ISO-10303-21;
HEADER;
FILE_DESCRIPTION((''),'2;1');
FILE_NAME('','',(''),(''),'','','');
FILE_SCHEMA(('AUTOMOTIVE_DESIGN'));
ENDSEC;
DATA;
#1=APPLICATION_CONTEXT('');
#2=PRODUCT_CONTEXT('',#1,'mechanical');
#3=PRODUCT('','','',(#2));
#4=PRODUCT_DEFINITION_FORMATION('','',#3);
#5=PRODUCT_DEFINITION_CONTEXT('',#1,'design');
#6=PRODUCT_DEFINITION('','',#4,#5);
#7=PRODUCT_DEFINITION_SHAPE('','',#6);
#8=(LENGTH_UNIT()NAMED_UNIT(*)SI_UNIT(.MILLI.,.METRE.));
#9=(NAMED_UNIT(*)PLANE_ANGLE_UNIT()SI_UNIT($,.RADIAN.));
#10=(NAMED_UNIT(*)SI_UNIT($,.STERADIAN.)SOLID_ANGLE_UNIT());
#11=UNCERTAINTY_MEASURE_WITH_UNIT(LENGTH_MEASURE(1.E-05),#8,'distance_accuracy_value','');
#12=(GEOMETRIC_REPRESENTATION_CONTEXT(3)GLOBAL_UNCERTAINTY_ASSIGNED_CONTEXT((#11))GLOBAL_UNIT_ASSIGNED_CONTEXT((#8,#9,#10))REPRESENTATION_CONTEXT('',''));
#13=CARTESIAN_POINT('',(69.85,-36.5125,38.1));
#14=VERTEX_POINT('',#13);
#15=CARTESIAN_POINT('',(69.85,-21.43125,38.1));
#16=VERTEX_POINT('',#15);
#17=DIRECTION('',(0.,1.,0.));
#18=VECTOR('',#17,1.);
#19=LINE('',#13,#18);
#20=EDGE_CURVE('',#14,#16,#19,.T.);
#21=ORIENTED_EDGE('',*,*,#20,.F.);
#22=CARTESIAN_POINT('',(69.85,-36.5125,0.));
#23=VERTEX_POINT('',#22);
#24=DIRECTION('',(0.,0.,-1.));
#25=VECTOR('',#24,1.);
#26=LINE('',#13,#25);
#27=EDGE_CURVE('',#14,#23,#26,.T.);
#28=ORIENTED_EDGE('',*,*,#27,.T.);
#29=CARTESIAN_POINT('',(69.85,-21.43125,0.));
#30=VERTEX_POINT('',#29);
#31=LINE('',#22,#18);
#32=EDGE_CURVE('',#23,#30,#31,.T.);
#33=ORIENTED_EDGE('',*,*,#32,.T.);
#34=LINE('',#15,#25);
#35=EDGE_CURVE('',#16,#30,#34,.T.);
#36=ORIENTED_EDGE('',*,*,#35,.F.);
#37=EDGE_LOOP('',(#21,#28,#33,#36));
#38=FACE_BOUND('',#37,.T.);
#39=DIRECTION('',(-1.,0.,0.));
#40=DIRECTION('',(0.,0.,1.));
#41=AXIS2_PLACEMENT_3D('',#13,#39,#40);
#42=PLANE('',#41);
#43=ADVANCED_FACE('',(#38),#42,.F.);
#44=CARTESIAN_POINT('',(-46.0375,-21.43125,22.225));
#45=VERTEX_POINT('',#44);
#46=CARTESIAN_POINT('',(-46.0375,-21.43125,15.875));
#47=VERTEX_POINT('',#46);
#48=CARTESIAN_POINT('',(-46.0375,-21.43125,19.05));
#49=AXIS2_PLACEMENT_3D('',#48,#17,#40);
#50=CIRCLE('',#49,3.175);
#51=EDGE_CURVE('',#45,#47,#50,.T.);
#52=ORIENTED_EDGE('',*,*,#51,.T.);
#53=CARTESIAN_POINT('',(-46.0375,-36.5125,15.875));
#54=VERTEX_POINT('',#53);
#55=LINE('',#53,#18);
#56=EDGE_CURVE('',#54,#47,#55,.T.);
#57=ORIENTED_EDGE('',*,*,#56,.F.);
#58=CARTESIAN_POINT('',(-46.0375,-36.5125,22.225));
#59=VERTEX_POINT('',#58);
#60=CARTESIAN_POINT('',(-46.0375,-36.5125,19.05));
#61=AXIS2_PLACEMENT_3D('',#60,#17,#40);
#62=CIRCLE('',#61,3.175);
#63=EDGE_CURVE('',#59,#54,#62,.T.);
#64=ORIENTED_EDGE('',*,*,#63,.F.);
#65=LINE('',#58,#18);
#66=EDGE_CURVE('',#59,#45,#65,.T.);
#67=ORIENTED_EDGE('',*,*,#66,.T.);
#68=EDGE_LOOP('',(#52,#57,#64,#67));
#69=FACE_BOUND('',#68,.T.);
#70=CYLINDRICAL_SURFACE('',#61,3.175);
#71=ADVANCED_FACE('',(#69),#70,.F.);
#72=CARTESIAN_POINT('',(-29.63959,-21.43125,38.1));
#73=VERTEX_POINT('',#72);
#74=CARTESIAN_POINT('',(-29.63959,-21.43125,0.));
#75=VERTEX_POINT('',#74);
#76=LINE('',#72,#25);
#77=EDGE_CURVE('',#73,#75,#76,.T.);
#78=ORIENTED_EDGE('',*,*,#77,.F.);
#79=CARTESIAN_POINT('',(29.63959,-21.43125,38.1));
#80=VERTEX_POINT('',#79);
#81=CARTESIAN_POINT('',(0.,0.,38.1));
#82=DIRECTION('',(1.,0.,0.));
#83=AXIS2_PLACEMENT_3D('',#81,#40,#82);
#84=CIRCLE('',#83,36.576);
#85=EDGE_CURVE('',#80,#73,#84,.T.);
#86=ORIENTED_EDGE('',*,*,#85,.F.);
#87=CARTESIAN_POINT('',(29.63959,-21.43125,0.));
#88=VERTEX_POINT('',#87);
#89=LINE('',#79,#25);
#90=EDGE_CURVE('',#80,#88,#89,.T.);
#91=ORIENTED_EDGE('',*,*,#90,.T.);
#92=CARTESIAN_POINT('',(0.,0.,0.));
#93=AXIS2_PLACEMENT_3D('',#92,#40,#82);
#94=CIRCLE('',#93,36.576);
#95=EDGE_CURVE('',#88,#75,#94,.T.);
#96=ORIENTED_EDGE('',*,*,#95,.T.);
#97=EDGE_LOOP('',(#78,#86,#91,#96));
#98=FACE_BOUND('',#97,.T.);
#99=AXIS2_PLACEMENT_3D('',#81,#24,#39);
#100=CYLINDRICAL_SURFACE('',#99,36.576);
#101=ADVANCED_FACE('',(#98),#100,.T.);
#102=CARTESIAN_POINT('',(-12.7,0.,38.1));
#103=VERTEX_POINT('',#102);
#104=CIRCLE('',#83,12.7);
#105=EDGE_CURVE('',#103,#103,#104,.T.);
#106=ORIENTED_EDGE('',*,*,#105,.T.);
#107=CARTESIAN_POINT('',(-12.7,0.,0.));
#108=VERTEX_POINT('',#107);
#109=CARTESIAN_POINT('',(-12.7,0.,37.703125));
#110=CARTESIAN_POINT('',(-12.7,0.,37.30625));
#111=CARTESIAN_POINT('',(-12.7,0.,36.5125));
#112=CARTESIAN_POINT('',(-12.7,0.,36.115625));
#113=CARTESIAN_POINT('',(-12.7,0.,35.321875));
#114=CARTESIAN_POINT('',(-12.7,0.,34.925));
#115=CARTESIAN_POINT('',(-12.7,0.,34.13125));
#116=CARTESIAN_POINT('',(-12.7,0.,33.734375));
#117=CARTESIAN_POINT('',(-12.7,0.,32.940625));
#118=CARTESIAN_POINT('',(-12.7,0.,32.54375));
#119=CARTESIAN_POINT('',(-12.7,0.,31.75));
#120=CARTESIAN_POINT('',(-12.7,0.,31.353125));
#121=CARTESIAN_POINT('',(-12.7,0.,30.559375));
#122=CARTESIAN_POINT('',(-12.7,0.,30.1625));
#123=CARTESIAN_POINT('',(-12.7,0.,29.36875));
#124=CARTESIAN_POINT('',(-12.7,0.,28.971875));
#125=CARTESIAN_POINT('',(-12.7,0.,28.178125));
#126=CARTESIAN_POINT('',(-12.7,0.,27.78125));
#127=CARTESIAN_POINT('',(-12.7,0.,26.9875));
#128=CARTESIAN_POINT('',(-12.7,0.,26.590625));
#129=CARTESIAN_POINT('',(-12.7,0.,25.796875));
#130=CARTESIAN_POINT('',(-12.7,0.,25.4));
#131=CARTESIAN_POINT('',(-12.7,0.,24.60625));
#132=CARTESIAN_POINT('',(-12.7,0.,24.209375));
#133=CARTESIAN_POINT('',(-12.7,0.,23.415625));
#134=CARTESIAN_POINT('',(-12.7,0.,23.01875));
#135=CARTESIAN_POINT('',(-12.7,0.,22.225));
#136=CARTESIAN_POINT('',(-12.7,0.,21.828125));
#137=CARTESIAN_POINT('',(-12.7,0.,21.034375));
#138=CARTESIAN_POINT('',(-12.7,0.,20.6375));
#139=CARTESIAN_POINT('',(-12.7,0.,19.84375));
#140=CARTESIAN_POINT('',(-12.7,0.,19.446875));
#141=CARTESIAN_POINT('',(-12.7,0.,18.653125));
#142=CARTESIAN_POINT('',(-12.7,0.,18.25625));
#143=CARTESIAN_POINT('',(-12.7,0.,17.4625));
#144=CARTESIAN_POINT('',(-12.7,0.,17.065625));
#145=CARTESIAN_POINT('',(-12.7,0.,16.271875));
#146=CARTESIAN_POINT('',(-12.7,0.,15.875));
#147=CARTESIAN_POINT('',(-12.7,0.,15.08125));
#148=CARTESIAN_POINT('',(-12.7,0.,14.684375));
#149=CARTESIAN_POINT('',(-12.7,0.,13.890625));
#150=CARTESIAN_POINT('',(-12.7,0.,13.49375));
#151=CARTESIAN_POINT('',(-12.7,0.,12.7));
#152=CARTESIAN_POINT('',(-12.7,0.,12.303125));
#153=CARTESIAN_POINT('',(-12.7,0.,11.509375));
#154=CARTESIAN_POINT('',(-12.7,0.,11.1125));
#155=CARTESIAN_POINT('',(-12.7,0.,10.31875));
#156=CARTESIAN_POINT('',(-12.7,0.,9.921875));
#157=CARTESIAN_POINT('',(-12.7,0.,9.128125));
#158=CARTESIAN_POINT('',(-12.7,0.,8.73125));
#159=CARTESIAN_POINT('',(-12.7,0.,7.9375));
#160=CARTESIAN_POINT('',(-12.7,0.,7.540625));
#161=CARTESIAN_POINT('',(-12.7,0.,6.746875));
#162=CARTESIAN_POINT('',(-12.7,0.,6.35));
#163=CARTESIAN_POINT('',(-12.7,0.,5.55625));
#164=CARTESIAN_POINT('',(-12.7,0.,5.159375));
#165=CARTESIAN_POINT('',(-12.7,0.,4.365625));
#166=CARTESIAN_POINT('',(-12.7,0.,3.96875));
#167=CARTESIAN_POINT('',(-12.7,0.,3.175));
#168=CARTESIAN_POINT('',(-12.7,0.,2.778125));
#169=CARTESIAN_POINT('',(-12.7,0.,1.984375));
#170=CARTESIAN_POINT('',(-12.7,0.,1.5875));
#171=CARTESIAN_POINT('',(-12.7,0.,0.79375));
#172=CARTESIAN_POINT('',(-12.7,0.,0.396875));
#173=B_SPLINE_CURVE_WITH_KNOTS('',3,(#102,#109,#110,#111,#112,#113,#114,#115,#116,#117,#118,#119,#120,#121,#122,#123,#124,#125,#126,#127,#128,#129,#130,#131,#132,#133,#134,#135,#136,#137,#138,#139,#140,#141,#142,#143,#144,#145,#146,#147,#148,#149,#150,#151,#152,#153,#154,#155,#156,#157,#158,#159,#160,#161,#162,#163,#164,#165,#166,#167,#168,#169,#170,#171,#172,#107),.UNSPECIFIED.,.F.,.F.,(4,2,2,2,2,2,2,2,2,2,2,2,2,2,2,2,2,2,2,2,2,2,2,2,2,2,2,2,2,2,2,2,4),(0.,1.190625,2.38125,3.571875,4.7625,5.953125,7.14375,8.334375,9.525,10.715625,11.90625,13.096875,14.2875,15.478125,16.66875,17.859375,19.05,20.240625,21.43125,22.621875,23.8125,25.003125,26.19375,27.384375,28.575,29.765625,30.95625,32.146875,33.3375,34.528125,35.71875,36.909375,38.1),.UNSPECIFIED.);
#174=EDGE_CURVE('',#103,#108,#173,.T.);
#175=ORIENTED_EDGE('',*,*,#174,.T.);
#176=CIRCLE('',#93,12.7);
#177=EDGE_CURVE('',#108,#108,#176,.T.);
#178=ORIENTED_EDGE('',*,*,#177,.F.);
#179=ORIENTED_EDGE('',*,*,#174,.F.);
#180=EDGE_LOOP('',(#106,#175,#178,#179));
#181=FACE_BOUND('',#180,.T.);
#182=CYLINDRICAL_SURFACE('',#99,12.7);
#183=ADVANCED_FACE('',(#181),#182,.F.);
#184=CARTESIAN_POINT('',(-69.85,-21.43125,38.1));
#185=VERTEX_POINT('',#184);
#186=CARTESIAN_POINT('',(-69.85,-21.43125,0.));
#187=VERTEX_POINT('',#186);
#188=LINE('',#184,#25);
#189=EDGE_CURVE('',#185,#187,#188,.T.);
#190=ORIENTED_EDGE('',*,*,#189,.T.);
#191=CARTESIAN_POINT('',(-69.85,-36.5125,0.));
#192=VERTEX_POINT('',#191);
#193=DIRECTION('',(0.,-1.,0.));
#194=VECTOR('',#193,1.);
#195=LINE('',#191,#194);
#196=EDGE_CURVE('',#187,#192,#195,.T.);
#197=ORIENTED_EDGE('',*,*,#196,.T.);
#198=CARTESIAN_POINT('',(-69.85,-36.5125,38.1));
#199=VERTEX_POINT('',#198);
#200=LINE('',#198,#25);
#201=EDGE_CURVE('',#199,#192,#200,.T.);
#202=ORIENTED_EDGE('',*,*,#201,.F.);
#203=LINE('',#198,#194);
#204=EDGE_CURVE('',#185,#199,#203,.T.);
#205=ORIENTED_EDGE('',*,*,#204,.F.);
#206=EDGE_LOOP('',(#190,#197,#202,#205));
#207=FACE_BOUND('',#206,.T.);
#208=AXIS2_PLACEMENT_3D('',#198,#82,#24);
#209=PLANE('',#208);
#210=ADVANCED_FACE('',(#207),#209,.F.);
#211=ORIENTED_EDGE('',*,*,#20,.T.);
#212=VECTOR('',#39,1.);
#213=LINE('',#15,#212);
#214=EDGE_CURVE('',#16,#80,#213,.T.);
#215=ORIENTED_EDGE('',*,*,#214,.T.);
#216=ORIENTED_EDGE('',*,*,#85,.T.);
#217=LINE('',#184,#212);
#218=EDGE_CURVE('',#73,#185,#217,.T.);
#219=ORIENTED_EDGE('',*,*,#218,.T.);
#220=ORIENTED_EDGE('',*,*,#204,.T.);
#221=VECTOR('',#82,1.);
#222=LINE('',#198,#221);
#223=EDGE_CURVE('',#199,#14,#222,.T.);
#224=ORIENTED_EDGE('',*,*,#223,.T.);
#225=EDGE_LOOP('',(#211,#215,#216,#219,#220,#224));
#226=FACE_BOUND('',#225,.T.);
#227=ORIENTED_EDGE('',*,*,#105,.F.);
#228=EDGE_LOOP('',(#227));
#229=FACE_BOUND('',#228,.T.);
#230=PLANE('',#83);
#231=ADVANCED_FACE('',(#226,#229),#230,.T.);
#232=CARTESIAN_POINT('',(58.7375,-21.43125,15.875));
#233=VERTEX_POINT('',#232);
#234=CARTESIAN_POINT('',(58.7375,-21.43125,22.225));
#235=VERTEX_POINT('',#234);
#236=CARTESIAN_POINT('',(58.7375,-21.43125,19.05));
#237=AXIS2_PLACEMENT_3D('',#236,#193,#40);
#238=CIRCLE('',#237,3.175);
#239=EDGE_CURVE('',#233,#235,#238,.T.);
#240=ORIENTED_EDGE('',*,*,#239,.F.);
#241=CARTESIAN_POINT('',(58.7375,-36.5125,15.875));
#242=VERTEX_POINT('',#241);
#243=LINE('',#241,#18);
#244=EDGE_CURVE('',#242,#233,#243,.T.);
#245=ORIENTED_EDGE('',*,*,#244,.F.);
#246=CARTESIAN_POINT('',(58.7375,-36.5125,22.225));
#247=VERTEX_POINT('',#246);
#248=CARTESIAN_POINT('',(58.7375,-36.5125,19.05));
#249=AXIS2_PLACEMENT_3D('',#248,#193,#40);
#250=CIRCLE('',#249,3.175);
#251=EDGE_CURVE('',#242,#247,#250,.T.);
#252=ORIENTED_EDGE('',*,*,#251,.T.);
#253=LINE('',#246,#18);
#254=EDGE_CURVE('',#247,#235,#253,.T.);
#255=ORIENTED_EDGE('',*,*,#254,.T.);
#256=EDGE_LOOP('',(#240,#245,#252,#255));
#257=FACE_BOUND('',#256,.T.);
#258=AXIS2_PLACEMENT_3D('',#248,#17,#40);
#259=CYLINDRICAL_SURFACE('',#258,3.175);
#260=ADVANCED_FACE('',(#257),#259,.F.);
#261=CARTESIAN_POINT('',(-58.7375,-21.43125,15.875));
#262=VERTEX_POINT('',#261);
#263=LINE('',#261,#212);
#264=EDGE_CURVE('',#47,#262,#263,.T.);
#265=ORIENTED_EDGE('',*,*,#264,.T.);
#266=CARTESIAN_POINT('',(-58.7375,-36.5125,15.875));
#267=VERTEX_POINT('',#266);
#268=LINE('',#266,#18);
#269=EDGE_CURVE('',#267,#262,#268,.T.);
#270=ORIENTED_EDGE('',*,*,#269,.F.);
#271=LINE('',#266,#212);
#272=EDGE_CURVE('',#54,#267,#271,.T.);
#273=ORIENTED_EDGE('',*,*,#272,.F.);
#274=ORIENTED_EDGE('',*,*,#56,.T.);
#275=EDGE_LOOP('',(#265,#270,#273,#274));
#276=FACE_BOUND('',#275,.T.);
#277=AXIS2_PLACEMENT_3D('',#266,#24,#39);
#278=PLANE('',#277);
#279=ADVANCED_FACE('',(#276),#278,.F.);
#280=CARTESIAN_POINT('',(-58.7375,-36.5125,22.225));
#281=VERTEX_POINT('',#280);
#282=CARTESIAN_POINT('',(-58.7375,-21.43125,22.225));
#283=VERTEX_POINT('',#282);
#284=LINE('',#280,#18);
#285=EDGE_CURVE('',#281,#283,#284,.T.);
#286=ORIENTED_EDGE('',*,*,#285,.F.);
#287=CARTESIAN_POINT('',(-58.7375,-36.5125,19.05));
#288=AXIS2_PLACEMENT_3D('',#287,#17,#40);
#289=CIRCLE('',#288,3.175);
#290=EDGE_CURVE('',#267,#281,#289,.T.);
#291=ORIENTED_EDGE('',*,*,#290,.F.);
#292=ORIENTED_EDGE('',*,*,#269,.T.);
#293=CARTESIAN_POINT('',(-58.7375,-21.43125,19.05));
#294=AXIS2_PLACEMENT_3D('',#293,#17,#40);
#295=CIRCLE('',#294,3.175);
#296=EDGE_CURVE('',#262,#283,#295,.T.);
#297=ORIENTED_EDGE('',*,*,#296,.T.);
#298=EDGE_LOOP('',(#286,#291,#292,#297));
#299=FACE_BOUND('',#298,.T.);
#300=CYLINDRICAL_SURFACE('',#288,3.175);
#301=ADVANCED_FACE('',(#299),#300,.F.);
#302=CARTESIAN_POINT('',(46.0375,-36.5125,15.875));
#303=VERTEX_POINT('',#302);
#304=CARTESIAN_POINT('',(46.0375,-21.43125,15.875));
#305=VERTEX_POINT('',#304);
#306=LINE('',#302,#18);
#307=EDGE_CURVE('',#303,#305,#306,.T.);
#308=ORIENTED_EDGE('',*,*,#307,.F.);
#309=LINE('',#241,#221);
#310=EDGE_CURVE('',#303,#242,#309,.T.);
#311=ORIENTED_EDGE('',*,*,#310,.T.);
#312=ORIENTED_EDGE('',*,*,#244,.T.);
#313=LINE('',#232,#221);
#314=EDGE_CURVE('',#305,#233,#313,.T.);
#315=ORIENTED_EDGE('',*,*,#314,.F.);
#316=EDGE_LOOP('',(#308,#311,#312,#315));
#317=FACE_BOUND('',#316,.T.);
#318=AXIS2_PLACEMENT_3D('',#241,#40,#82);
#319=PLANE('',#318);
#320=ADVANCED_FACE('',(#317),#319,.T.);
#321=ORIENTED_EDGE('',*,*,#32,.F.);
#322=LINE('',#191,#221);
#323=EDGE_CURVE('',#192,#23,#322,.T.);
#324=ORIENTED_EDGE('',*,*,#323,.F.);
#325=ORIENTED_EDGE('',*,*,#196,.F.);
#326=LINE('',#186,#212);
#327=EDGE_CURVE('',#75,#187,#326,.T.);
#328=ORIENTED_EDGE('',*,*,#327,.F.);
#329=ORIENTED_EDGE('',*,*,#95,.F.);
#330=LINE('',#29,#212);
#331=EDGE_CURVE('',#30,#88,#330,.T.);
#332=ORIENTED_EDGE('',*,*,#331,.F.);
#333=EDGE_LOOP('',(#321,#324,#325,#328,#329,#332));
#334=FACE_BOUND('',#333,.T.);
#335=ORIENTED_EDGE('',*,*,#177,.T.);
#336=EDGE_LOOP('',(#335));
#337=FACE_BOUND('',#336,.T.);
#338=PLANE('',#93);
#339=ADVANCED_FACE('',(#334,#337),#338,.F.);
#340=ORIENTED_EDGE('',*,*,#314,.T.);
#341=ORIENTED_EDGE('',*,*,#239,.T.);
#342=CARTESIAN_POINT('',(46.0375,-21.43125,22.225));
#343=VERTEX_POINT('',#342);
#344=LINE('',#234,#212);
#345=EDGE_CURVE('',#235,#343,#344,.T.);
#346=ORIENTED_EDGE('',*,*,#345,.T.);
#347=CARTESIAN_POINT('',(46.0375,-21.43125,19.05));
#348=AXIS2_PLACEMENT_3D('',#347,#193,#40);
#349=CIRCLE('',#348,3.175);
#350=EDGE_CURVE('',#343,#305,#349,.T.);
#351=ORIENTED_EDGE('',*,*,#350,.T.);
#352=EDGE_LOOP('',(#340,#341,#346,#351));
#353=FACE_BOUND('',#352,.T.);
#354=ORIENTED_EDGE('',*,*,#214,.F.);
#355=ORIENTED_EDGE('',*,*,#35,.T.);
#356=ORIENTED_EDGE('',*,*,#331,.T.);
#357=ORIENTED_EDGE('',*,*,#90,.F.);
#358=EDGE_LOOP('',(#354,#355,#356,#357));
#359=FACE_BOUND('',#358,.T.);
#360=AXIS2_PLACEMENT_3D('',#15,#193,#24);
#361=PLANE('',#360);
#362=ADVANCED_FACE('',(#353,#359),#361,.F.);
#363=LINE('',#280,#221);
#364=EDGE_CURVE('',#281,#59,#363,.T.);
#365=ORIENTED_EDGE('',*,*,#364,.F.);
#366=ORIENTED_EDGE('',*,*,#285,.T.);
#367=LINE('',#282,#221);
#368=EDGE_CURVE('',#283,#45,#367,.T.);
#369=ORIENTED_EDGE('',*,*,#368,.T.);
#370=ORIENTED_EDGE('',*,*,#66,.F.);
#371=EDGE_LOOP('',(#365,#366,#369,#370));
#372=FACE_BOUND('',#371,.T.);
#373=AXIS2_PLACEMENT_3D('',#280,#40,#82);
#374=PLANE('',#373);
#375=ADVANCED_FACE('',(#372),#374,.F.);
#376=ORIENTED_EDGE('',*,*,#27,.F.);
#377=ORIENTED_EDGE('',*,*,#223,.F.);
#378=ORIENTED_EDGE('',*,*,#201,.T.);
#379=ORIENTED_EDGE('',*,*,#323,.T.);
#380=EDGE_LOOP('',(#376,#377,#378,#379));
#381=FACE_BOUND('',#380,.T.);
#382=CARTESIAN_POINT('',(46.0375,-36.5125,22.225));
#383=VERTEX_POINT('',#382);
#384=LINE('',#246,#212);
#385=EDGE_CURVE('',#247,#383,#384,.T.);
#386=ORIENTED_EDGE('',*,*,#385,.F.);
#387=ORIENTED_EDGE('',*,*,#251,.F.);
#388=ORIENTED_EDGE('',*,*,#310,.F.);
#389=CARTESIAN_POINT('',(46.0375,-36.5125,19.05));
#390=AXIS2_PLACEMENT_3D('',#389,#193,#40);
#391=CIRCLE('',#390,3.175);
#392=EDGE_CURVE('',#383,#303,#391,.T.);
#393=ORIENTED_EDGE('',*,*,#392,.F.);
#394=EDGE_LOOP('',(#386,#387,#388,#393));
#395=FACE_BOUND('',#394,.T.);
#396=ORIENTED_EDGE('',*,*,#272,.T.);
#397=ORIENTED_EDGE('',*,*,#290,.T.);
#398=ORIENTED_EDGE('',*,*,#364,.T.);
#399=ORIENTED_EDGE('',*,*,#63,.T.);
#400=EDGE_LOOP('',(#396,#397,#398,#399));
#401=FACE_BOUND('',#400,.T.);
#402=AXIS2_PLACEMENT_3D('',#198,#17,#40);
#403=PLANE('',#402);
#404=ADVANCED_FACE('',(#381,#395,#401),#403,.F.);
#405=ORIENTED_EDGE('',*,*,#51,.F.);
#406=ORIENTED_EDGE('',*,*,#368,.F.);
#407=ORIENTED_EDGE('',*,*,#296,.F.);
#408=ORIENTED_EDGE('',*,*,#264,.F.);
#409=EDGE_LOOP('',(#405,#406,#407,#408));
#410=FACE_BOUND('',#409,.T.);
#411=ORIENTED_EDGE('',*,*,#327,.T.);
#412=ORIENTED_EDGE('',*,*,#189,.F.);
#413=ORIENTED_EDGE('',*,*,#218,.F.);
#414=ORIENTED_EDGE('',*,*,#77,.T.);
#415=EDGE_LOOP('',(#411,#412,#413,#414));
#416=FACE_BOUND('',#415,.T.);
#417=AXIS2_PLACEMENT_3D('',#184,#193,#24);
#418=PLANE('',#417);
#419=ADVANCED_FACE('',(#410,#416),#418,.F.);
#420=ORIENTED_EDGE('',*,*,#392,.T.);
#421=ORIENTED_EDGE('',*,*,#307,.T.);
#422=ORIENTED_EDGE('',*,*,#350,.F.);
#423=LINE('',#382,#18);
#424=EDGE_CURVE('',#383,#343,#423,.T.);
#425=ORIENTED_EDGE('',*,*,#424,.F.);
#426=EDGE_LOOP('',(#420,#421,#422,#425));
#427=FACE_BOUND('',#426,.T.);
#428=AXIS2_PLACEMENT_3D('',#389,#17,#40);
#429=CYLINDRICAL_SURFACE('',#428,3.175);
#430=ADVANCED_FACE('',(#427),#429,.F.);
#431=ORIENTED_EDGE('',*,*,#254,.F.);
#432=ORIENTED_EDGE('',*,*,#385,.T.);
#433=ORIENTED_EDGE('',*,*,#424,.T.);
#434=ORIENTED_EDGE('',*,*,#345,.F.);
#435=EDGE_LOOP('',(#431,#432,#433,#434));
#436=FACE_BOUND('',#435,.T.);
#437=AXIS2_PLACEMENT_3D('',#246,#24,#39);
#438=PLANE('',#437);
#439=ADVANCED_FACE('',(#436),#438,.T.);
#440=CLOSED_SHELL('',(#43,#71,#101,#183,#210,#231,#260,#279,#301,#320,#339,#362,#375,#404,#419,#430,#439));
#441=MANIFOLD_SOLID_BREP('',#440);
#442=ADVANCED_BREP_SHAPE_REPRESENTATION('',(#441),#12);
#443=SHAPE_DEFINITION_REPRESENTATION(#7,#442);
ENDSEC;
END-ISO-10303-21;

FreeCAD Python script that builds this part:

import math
import FreeCAD as App
import Part
import Sketcher
Q = App.Units.Quantity

doc = App.newDocument("Part")
body = doc.addObject("PartDesign::Body", "Body")

# Sketch on XY plane
sketch1 = doc.addObject("Sketcher::SketchObject", "Sketch")
body.addObject(sketch1)
sketch1.AttachmentSupport = (doc.XY_Plane, [""])
sketch1.MapMode = "FlatFace"
sketch1.addGeometry(Part.LineSegment(App.Vector(-70, -37, 0), App.Vector(70, -37, 0)), False)
sketch1.addGeometry(Part.LineSegment(App.Vector(70, -37, 0), App.Vector(70, -21, 0)), False)
sketch1.addGeometry(Part.LineSegment(App.Vector(70, -21, 0), App.Vector(30, -21, 0)), False)
sketch1.addGeometry(Part.ArcOfCircle(Part.Circle(App.Vector(0, 0, 0), App.Vector(0, 0, 1), 37), math.radians(-36), math.radians(216)), False)
sketch1.addGeometry(Part.LineSegment(App.Vector(-30, -21, 0), App.Vector(-70, -21, 0)), False)
sketch1.addGeometry(Part.LineSegment(App.Vector(-70, -21, 0), App.Vector(-70, -37, 0)), False)
sketch1.addGeometry(Part.Circle(App.Vector(0, 0, 0), App.Vector(0, 0, 1), 13), False)
sketch1.addConstraint(Sketcher.Constraint("Coincident", 0, 2, 1, 1))
sketch1.addConstraint(Sketcher.Constraint("Coincident", 1, 2, 2, 1))
sketch1.addConstraint(Sketcher.Constraint("Coincident", 2, 2, 3, 1))
sketch1.addConstraint(Sketcher.Constraint("Coincident", 3, 2, 4, 1))
sketch1.addConstraint(Sketcher.Constraint("Coincident", 4, 2, 5, 1))
sketch1.addConstraint(Sketcher.Constraint("Coincident", 5, 2, 0, 1))
sketch1.addConstraint(Sketcher.Constraint("Horizontal", 0))
sketch1.addConstraint(Sketcher.Constraint("Vertical", 1))
sketch1.addConstraint(Sketcher.Constraint("Horizontal", 2))
sketch1.addConstraint(Sketcher.Constraint("Horizontal", 4))
sketch1.addConstraint(Sketcher.Constraint("Vertical", 5))
sketch1.addConstraint(Sketcher.Constraint("Coincident", 3, 3, -1, 1))
sketch1.addConstraint(Sketcher.Constraint("Coincident", 6, 3, -1, 1))
sketch1.addConstraint(Sketcher.Constraint("Symmetric", 1, 2, 4, 2, -2))
sketch1.addConstraint(Sketcher.Constraint("Diameter", 6, Q("1 in")))
sketch1.addConstraint(Sketcher.Constraint("Radius", 3, Q("1.44 in")))
sketch1.addConstraint(Sketcher.Constraint("DistanceX", 0, 1, 0, 2, Q("5.5 in")))
sketch1.addConstraint(Sketcher.Constraint("DistanceY", 1, 1, 1, 2, Q("0.59375 in")))
sketch1.addConstraint(Sketcher.Constraint("DistanceY", 0, 2, -1, 1, Q("1.4375 in")))
pad1 = doc.addObject("PartDesign::Pad", "Pad")
body.addObject(pad1)
pad1.Profile = sketch1
pad1.Length = Q("1.5 in")

# Sketch on XZ plane
sketch2 = doc.addObject("Sketcher::SketchObject", "Sketch001")
body.addObject(sketch2)
sketch2.AttachmentSupport = (doc.XZ_Plane, [""])
sketch2.MapMode = "FlatFace"
sketch2.AttachmentOffset = App.Placement(App.Vector(0, 0, 0.84375 * 25.4), App.Rotation())
sketch2.addGeometry(Part.LineSegment(App.Vector(-46, 15.9, 0), App.Vector(-58.7, 15.9, 0)), False)
sketch2.addGeometry(Part.ArcOfCircle(Part.Circle(App.Vector(-58.7, 19.1, 0), App.Vector(0, 0, 1), 3.2), math.radians(90), math.radians(270)), False)
sketch2.addGeometry(Part.LineSegment(App.Vector(-58.7, 22.2, 0), App.Vector(-46, 22.2, 0)), False)
sketch2.addGeometry(Part.ArcOfCircle(Part.Circle(App.Vector(-46, 19.1, 0), App.Vector(0, 0, 1), 3.2), math.radians(-90), math.radians(90)), False)
sketch2.addConstraint(Sketcher.Constraint("Tangent", 0, 2, 1, 2))
sketch2.addConstraint(Sketcher.Constraint("Tangent", 1, 1, 2, 1))
sketch2.addConstraint(Sketcher.Constraint("Tangent", 2, 2, 3, 2))
sketch2.addConstraint(Sketcher.Constraint("Tangent", 3, 1, 0, 1))
sketch2.addConstraint(Sketcher.Constraint("Horizontal", 0))
sketch2.addConstraint(Sketcher.Constraint("Horizontal", 2))
sketch2.addConstraint(Sketcher.Constraint("DistanceX", 0, 2, 0, 1, Q("0.5 in")))
sketch2.addConstraint(Sketcher.Constraint("Radius", 1, Q("0.125 in")))
sketch2.addConstraint(Sketcher.Constraint("DistanceY", -1, 1, 1, 3, Q("0.75 in")))
sketch2.addConstraint(Sketcher.Constraint("DistanceX", 1, 3, -1, 1, Q("2.3125 in")))
pocket1 = doc.addObject("PartDesign::Pocket", "Pocket")
body.addObject(pocket1)
pocket1.Profile = sketch2
pocket1.Type = "ThroughAll"
pocket1.Reversed = True
doc.recompute()

mirrored = doc.addObject("PartDesign::Mirrored", "Mirrored")
body.addObject(mirrored)
mirrored.Originals = [pocket1]
mirrored.MirrorPlane = (doc.YZ_Plane, [""])
body.Tip = mirrored

doc.recompute()
